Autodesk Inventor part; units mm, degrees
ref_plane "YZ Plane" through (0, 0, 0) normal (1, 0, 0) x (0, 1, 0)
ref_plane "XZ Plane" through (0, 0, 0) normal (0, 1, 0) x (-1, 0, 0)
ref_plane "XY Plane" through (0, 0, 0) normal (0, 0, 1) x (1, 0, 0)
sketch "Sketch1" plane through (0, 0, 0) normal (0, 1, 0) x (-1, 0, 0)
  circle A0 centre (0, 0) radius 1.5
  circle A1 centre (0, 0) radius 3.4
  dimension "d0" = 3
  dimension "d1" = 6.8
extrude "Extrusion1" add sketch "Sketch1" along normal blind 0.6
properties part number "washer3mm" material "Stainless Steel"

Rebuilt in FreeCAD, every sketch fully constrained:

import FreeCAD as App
import Part
import Sketcher

V = App.Vector
Q = App.Units.Quantity

doc = App.newDocument("Part")
body = doc.addObject("PartDesign::Body", "Body")

sketch1 = body.newObject("Sketcher::SketchObject", "Sketch")
sketch1.AttachmentSupport = (doc.getObject("XZ_Plane"), [""])
sketch1.MapMode = "FlatFace"
sketch1.addGeometry([
    Part.Circle(V(0, 0, 0), V(0, 0, 1), 3.4),
    Part.Circle(V(0, 0, 0), V(0, 0, 1), 1.5),
], False)
sketch1.addConstraint([
    Sketcher.Constraint("Coincident", 0, 3, -1, 1),
    Sketcher.Constraint("Coincident", 1, 3, -1, 1),
    Sketcher.Constraint("Diameter", 1, Q("3 mm")),
    Sketcher.Constraint("Diameter", 0, Q("6.8 mm")),
])
pad1 = body.newObject("PartDesign::Pad", "Pad")
pad1.Profile = sketch1
pad1.Length = 0.6
pad1.Reversed = True

doc.recompute()
